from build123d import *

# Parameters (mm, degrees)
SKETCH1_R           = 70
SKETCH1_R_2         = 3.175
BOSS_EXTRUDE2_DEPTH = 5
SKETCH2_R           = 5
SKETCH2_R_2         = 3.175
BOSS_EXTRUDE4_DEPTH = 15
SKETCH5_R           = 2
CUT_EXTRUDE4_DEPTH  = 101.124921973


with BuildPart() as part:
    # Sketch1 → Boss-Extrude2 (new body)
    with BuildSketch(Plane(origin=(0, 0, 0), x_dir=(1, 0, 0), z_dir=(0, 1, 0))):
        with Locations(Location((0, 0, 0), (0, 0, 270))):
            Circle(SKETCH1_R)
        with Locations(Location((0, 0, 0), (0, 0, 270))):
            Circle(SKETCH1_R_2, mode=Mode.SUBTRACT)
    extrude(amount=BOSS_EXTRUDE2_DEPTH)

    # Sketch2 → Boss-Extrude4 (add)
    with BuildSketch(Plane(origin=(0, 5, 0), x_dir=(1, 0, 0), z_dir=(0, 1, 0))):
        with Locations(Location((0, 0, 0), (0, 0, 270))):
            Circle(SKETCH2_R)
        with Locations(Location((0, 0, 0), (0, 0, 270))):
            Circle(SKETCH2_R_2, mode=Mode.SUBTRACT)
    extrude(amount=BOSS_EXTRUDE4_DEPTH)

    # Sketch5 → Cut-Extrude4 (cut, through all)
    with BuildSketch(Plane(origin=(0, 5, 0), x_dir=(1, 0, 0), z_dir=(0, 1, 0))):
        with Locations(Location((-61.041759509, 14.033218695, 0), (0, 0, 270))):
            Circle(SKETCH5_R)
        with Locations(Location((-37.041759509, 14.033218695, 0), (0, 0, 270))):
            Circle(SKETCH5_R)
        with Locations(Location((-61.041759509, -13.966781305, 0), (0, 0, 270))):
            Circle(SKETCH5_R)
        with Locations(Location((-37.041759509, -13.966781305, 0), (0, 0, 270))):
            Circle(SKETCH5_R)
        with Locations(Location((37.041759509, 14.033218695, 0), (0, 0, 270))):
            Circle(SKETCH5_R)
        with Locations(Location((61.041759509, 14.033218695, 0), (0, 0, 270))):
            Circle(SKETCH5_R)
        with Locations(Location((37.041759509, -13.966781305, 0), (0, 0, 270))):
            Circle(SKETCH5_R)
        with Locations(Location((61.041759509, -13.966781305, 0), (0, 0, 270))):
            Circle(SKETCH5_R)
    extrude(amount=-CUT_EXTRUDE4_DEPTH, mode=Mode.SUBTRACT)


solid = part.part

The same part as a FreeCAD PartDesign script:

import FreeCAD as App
import Part
import Sketcher
Q = App.Units.Quantity

doc = App.newDocument("Part")
body = doc.addObject("PartDesign::Body", "Body")

# Sketch on XZ plane
sketch1 = doc.addObject("Sketcher::SketchObject", "Sketch")
body.addObject(sketch1)
sketch1.AttachmentSupport = (doc.XZ_Plane, [""])
sketch1.MapMode = "FlatFace"
sketch1.addGeometry(Part.Circle(App.Vector(0, 0, 0), App.Vector(0, 0, 1), 70), False)
sketch1.addGeometry(Part.Circle(App.Vector(0, 0, 0), App.Vector(0, 0, 1), 3.2), False)
sketch1.addConstraint(Sketcher.Constraint("Coincident", 0, 3, -1, 1))
sketch1.addConstraint(Sketcher.Constraint("Coincident", 1, 3, -1, 1))
sketch1.addConstraint(Sketcher.Constraint("Diameter", 0, Q("140 mm")))
sketch1.addConstraint(Sketcher.Constraint("Diameter", 1, Q("6.35 mm")))
pad1 = doc.addObject("PartDesign::Pad", "Pad")
body.addObject(pad1)
pad1.Profile = sketch1
pad1.Length = 5
pad1.Reversed = True

# Sketch on XZ plane
sketch2 = doc.addObject("Sketcher::SketchObject", "Sketch001")
body.addObject(sketch2)
sketch2.AttachmentSupport = (doc.XZ_Plane, [""])
sketch2.MapMode = "FlatFace"
sketch2.AttachmentOffset = App.Placement(App.Vector(0, 0, -5), App.Rotation())
sketch2.addGeometry(Part.Circle(App.Vector(0, 0, 0), App.Vector(0, 0, 1), 5), False)
sketch2.addGeometry(Part.Circle(App.Vector(0, 0, 0), App.Vector(0, 0, 1), 3.2), False)
sketch2.addConstraint(Sketcher.Constraint("Coincident", 0, 3, -1, 1))
sketch2.addConstraint(Sketcher.Constraint("Coincident", 1, 3, -1, 1))
sketch2.addConstraint(Sketcher.Constraint("Diameter", 0, Q("10 mm")))
sketch2.addConstraint(Sketcher.Constraint("Diameter", 1, Q("6.35 mm")))
pad2 = doc.addObject("PartDesign::Pad", "Pad001")
body.addObject(pad2)
pad2.Profile = sketch2
pad2.Length = 15
pad2.Reversed = True

# Sketch on XZ plane
sketch3 = doc.addObject("Sketcher::SketchObject", "Sketch002")
body.addObject(sketch3)
sketch3.AttachmentSupport = (doc.XZ_Plane, [""])
sketch3.MapMode = "FlatFace"
sketch3.AttachmentOffset = App.Placement(App.Vector(0, 0, -5), App.Rotation())
sketch3.addGeometry(Part.Circle(App.Vector(-61, -14, 0), App.Vector(0, 0, 1), 2), False)
sketch3.addGeometry(Part.Circle(App.Vector(-37, -14, 0), App.Vector(0, 0, 1), 2), False)
sketch3.addGeometry(Part.Circle(App.Vector(-61, 14, 0), App.Vector(0, 0, 1), 2), False)
sketch3.addGeometry(Part.Circle(App.Vector(-37, 14, 0), App.Vector(0, 0, 1), 2), False)
sketch3.addGeometry(Part.Circle(App.Vector(37, -14, 0), App.Vector(0, 0, 1), 2), False)
sketch3.addGeometry(Part.Circle(App.Vector(61, -14, 0), App.Vector(0, 0, 1), 2), False)
sketch3.addGeometry(Part.Circle(App.Vector(37, 14, 0), App.Vector(0, 0, 1), 2), False)
sketch3.addGeometry(Part.Circle(App.Vector(61, 14, 0), App.Vector(0, 0, 1), 2), False)
sketch3.addConstraint(Sketcher.Constraint("Equal", 0, 1))
sketch3.addConstraint(Sketcher.Constraint("Equal", 1, 2))
sketch3.addConstraint(Sketcher.Constraint("Equal", 2, 3))
sketch3.addConstraint(Sketcher.Constraint("Equal", 3, 4))
sketch3.addConstraint(Sketcher.Constraint("Equal", 4, 5))
sketch3.addConstraint(Sketcher.Constraint("Equal", 5, 6))
sketch3.addConstraint(Sketcher.Constraint("Equal", 6, 7))
sketch3.addConstraint(Sketcher.Constraint("Symmetric", 1, 3, 4, 3, -2))
sketch3.addConstraint(Sketcher.Constraint("Symmetric", 0, 3, 5, 3, -2))
sketch3.addConstraint(Sketcher.Constraint("Symmetric", 3, 3, 6, 3, -2))
sketch3.addConstraint(Sketcher.Constraint("Symmetric", 2, 3, 7, 3, -2))
sketch3.addConstraint(Sketcher.Constraint("Horizontal", 0, 3, 1, 3))
sketch3.addConstraint(Sketcher.Constraint("Horizontal", 2, 3, 3, 3))
sketch3.addConstraint(Sketcher.Constraint("Vertical", 0, 3, 2, 3))
sketch3.addConstraint(Sketcher.Constraint("Vertical", 1, 3, 3, 3))
sketch3.addConstraint(Sketcher.Constraint("Diameter", 0, Q("4 mm")))
sketch3.addConstraint(Sketcher.Constraint("DistanceX", 0, 3, 1, 3, Q("24 mm")))
sketch3.addConstraint(Sketcher.Constraint("DistanceY", 0, 3, 2, 3, Q("28 mm")))
sketch3.addConstraint(Sketcher.Constraint("DistanceX", 0, 3, -1, 1, Q("61.04176 mm")))
sketch3.addConstraint(Sketcher.Constraint("DistanceY", 0, 3, -1, 1, Q("14.033219 mm")))
pocket1 = doc.addObject("PartDesign::Pocket", "Pocket")
body.addObject(pocket1)
pocket1.Profile = sketch3
pocket1.Type = "ThroughAll"
pocket1.Reversed = True

doc.recompute()
